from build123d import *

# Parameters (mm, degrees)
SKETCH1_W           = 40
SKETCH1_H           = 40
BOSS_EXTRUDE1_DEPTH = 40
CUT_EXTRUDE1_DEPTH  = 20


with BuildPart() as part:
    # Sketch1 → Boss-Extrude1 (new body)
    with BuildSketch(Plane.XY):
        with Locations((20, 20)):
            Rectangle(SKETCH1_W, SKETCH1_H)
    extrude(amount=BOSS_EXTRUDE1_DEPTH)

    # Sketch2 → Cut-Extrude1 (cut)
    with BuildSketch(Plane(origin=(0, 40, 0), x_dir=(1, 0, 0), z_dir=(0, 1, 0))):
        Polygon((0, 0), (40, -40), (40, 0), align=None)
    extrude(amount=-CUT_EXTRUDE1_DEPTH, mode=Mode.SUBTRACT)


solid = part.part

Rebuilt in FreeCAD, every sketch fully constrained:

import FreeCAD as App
import Part
import Sketcher
from FreeCAD import Vector


def add_polygon(sketch, points):
    """Adds a closed chain of lines whose ends are joined by coincident constraints."""
    first, n = sketch.GeometryCount, len(points)
    for a, b in zip(points, points[1:] + points[:1]):
        sketch.addGeometry(Part.LineSegment(App.Vector(*a, 0), App.Vector(*b, 0)), False)
    for i in range(n):
        sketch.addConstraint(Sketcher.Constraint("Coincident", first + i, 2, first + (i + 1) % n, 1))

doc = App.newDocument("Part")
body = doc.addObject("PartDesign::Body", "Body")

# Sketch on XY plane
sketch1 = body.newObject("Sketcher::SketchObject", "Sketch")
sketch1.AttachmentSupport = (doc.getObject("XY_Plane"), [""])
sketch1.MapMode = "FlatFace"
add_polygon(sketch1, [(0, 40), (0, 0), (40, 0), (40, 40)])  # lines 0-3
sketch1.addConstraint([
    Sketcher.Constraint("Vertical", 0),
    Sketcher.Constraint("Horizontal", 1),
    Sketcher.Constraint("Vertical", 2),
    Sketcher.Constraint("Horizontal", 3),
    Sketcher.Constraint("Coincident", 0, 2, -1, 1),
    Sketcher.Constraint("Equal", 3, 0),
    Sketcher.Constraint("DistanceX", 1, 1, 1, 2, 40.0),
])
pad1 = body.newObject("PartDesign::Pad", "Pad")
pad1.Profile = sketch1
pad1.Length = 40

# Sketch on XZ plane
sketch2 = body.newObject("Sketcher::SketchObject", "Sketch001")
sketch2.AttachmentSupport = (doc.getObject("XZ_Plane"), [""])
sketch2.MapMode = "FlatFace"
sketch2.AttachmentOffset = App.Placement(Vector(0, 0, -40), App.Rotation())
add_polygon(sketch2, [(0, 0), (40, 40), (40, 0)])  # lines 0-2
sketch2.addConstraint([
    Sketcher.Constraint("Vertical", 1),
    Sketcher.Constraint("Horizontal", 2),
    Sketcher.Constraint("Coincident", 2, 2, -1, 1),
    Sketcher.Constraint("Equal", 2, 1),
    Sketcher.Constraint("DistanceX", 2, 2, 2, 1, 40.0),
])
pocket1 = body.newObject("PartDesign::Pocket", "Pocket")
pocket1.Profile = sketch2
pocket1.Length = 20
pocket1.Reversed = True

doc.recompute()
